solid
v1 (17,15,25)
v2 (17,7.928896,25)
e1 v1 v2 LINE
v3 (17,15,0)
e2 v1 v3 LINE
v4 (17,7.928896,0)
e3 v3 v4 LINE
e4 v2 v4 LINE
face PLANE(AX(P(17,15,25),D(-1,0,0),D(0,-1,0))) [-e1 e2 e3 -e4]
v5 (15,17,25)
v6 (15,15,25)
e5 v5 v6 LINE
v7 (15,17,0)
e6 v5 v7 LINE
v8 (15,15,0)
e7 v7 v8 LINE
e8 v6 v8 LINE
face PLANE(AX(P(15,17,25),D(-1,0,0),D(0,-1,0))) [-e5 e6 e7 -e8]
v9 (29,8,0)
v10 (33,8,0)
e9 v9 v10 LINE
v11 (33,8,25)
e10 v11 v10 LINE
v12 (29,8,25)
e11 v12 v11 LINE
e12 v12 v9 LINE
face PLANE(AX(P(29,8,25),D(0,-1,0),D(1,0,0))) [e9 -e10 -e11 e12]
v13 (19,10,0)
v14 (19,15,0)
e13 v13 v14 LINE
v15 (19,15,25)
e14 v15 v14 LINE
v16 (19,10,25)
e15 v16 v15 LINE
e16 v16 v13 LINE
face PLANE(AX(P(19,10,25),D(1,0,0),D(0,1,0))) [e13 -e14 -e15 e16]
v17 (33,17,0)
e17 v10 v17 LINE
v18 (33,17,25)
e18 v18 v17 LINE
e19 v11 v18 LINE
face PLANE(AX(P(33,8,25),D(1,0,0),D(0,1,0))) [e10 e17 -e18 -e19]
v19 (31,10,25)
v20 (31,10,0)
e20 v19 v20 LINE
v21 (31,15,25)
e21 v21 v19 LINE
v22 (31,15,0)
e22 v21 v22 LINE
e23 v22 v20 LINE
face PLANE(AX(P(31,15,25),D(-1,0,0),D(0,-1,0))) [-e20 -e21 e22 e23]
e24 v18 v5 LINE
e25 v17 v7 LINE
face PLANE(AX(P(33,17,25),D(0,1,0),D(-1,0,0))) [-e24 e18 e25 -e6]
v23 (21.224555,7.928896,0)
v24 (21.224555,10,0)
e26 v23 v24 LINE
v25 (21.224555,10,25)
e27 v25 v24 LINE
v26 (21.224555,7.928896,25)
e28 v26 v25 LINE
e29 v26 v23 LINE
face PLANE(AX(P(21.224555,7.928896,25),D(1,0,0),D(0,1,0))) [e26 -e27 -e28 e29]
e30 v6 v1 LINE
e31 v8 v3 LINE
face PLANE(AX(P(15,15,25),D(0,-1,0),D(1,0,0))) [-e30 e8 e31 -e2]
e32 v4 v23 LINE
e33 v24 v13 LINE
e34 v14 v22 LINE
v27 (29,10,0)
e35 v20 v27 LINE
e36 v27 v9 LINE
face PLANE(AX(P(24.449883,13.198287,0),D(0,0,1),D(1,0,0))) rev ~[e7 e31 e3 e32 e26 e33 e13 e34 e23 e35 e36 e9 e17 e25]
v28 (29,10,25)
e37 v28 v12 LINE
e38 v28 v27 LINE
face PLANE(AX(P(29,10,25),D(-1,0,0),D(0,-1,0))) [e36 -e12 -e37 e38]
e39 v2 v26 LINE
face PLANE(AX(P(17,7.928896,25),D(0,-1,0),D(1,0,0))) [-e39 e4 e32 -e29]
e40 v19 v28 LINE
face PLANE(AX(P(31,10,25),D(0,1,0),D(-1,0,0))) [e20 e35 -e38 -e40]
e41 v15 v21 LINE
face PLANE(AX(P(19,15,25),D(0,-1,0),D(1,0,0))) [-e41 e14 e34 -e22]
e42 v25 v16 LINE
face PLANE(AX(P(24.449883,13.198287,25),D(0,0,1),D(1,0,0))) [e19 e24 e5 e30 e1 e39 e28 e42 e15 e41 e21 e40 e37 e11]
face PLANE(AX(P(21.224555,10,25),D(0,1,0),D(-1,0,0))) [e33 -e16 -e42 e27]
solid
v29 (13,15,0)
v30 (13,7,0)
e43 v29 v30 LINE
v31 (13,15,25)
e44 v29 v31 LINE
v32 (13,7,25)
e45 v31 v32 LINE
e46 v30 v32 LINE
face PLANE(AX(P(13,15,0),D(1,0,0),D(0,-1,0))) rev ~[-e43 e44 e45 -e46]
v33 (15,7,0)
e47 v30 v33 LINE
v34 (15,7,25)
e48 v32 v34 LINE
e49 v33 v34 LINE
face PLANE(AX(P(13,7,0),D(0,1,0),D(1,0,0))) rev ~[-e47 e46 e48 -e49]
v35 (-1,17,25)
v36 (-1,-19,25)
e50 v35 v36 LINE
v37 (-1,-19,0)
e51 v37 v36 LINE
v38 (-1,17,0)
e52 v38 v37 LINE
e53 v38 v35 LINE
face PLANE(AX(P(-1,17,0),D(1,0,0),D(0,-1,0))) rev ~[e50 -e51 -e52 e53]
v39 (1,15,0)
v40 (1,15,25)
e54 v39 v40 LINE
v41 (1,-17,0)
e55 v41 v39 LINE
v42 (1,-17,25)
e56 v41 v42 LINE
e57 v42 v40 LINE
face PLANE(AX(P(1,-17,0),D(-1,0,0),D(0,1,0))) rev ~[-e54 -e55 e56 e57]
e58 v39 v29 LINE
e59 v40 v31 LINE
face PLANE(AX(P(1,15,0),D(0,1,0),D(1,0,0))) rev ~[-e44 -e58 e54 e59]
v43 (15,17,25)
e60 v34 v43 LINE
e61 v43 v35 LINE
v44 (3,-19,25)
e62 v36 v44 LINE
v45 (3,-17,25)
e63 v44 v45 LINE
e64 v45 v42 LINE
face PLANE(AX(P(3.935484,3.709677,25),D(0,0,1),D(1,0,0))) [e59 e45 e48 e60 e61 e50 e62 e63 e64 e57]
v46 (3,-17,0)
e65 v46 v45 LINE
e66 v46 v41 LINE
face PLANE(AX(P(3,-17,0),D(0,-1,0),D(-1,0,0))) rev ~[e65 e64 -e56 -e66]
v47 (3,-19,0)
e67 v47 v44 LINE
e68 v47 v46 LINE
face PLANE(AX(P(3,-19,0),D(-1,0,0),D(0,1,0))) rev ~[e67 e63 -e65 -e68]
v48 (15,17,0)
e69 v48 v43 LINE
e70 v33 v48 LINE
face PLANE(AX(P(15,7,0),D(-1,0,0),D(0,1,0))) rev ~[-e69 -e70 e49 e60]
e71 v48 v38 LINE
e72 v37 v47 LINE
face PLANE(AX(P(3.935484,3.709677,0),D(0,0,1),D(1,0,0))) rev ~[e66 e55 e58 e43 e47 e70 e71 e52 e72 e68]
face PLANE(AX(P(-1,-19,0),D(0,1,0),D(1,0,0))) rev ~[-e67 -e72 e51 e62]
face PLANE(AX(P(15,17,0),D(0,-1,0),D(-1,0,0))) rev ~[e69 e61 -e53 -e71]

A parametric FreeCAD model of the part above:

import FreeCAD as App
import Part
import Sketcher

V = App.Vector
Q = App.Units.Quantity

doc = App.newDocument("Part")
body = doc.addObject("PartDesign::Body", "Body")

sketch1 = body.newObject("Sketcher::SketchObject", "Sketch")
sketch1.AttachmentSupport = (doc.getObject("XY_Plane"), [""])
sketch1.MapMode = "FlatFace"
sketch1.addGeometry(Part.LineSegment(V(-1, 17, 0), V(-1, -19, 0)), False)
sketch1.addGeometry(Part.LineSegment(V(-1, -19, 0), V(3, -19, 0)), False)
sketch1.addGeometry(Part.LineSegment(V(3, -19, 0), V(3, -17, 0)), False)
sketch1.addGeometry(Part.LineSegment(V(3, -17, 0), V(1, -17, 0)), False)
sketch1.addGeometry(Part.LineSegment(V(1, -17, 0), V(1, 15, 0)), False)
sketch1.addGeometry(Part.LineSegment(V(1, 15, 0), V(13, 15, 0)), False)
sketch1.addGeometry(Part.LineSegment(V(13, 15, 0), V(13, 7, 0)), False)
sketch1.addGeometry(Part.LineSegment(V(13, 7, 0), V(15, 7, 0)), False)
sketch1.addGeometry(Part.LineSegment(V(15, 7, 0), V(15, 17, 0)), False)
sketch1.addGeometry(Part.LineSegment(V(15, 17, 0), V(-1, 17, 0)), False)
sketch1.addConstraint(Sketcher.Constraint("Coincident", 0, 2, 1, 1))
sketch1.addConstraint(Sketcher.Constraint("Coincident", 1, 2, 2, 1))
sketch1.addConstraint(Sketcher.Constraint("Coincident", 2, 2, 3, 1))
sketch1.addConstraint(Sketcher.Constraint("Coincident", 3, 2, 4, 1))
sketch1.addConstraint(Sketcher.Constraint("Coincident", 4, 2, 5, 1))
sketch1.addConstraint(Sketcher.Constraint("Coincident", 5, 2, 6, 1))
sketch1.addConstraint(Sketcher.Constraint("Coincident", 6, 2, 7, 1))
sketch1.addConstraint(Sketcher.Constraint("Coincident", 7, 2, 8, 1))
sketch1.addConstraint(Sketcher.Constraint("Coincident", 8, 2, 9, 1))
sketch1.addConstraint(Sketcher.Constraint("Coincident", 9, 2, 0, 1))
sketch1.addConstraint(Sketcher.Constraint("Vertical", 0))
sketch1.addConstraint(Sketcher.Constraint("Horizontal", 1))
sketch1.addConstraint(Sketcher.Constraint("Vertical", 2))
sketch1.addConstraint(Sketcher.Constraint("Horizontal", 3))
sketch1.addConstraint(Sketcher.Constraint("Vertical", 4))
sketch1.addConstraint(Sketcher.Constraint("Horizontal", 5))
sketch1.addConstraint(Sketcher.Constraint("Vertical", 6))
sketch1.addConstraint(Sketcher.Constraint("Horizontal", 7))
sketch1.addConstraint(Sketcher.Constraint("Vertical", 8))
sketch1.addConstraint(Sketcher.Constraint("Horizontal", 9))
sketch1.addConstraint(Sketcher.Constraint("Symmetric", 3, 2, 9, 2, -1, 1))
sketch1.addConstraint(Sketcher.Constraint("Equal", 3, 7))
sketch1.addConstraint(Sketcher.Constraint("Equal", 7, 2))
sketch1.addConstraint(Sketcher.Constraint("DistanceX", 1, 1, 1, 2, Q("4 mm")))
sketch1.addConstraint(Sketcher.Constraint("DistanceX", 3, 2, 3, 1, Q("2 mm")))
sketch1.addConstraint(Sketcher.Constraint("DistanceX", 5, 1, 5, 2, Q("12 mm")))
sketch1.addConstraint(Sketcher.Constraint("DistanceY", 0, 2, 0, 1, Q("36 mm")))
sketch1.addConstraint(Sketcher.Constraint("DistanceY", 4, 1, 4, 2, Q("32 mm")))
sketch1.addConstraint(Sketcher.Constraint("DistanceY", 6, 2, 6, 1, Q("8 mm")))
pad1 = body.newObject("PartDesign::Pad", "Pad")
pad1.Profile = sketch1
pad1.Length = 25
body2 = doc.addObject("PartDesign::Body", "Body001")

sketch2 = body2.newObject("Sketcher::SketchObject", "Sketch001")
sketch2.AttachmentSupport = (doc.getObject("XY_Plane001"), [""])
sketch2.MapMode = "FlatFace"
sketch2.AttachmentOffset = App.Placement(V(0, 0, 25), App.Rotation())
sketch2.addGeometry(Part.LineSegment(V(33, 17, 0), V(15, 17, 0)), False)
sketch2.addGeometry(Part.LineSegment(V(15, 17, 0), V(15, 15, 0)), False)
sketch2.addGeometry(Part.LineSegment(V(15, 15, 0), V(17, 15, 0)), False)
sketch2.addGeometry(Part.LineSegment(V(17, 15, 0), V(17, 7.9, 0)), False)
sketch2.addGeometry(Part.LineSegment(V(17, 7.9, 0), V(21.2, 7.9, 0)), False)
sketch2.addGeometry(Part.LineSegment(V(21.2, 7.9, 0), V(21.2, 10, 0)), False)
sketch2.addGeometry(Part.LineSegment(V(21.2, 10, 0), V(19, 10, 0)), False)
sketch2.addGeometry(Part.LineSegment(V(19, 10, 0), V(19, 15, 0)), False)
sketch2.addGeometry(Part.LineSegment(V(19, 15, 0), V(31, 15, 0)), False)
sketch2.addGeometry(Part.LineSegment(V(31, 15, 0), V(31, 10, 0)), False)
sketch2.addGeometry(Part.LineSegment(V(31, 10, 0), V(29, 10, 0)), False)
sketch2.addGeometry(Part.LineSegment(V(29, 10, 0), V(29, 8, 0)), False)
sketch2.addGeometry(Part.LineSegment(V(29, 8, 0), V(33, 8, 0)), False)
sketch2.addGeometry(Part.LineSegment(V(33, 8, 0), V(33, 17, 0)), False)
sketch2.addConstraint(Sketcher.Constraint("Coincident", 0, 2, 1, 1))
sketch2.addConstraint(Sketcher.Constraint("Coincident", 1, 2, 2, 1))
sketch2.addConstraint(Sketcher.Constraint("Coincident", 2, 2, 3, 1))
sketch2.addConstraint(Sketcher.Constraint("Coincident", 3, 2, 4, 1))
sketch2.addConstraint(Sketcher.Constraint("Coincident", 4, 2, 5, 1))
sketch2.addConstraint(Sketcher.Constraint("Coincident", 5, 2, 6, 1))
sketch2.addConstraint(Sketcher.Constraint("Coincident", 6, 2, 7, 1))
sketch2.addConstraint(Sketcher.Constraint("Coincident", 7, 2, 8, 1))
sketch2.addConstraint(Sketcher.Constraint("Coincident", 8, 2, 9, 1))
sketch2.addConstraint(Sketcher.Constraint("Coincident", 9, 2, 10, 1))
sketch2.addConstraint(Sketcher.Constraint("Coincident", 10, 2, 11, 1))
sketch2.addConstraint(Sketcher.Constraint("Coincident", 11, 2, 12, 1))
sketch2.addConstraint(Sketcher.Constraint("Coincident", 12, 2, 13, 1))
sketch2.addConstraint(Sketcher.Constraint("Coincident", 13, 2, 0, 1))
sketch2.addConstraint(Sketcher.Constraint("Horizontal", 0))
sketch2.addConstraint(Sketcher.Constraint("Vertical", 1))
sketch2.addConstraint(Sketcher.Constraint("Horizontal", 2))
sketch2.addConstraint(Sketcher.Constraint("Vertical", 3))
sketch2.addConstraint(Sketcher.Constraint("Horizontal", 4))
sketch2.addConstraint(Sketcher.Constraint("Vertical", 5))
sketch2.addConstraint(Sketcher.Constraint("Horizontal", 6))
sketch2.addConstraint(Sketcher.Constraint("Vertical", 7))
sketch2.addConstraint(Sketcher.Constraint("Horizontal", 8))
sketch2.addConstraint(Sketcher.Constraint("Vertical", 9))
sketch2.addConstraint(Sketcher.Constraint("Horizontal", 10))
sketch2.addConstraint(Sketcher.Constraint("Vertical", 11))
sketch2.addConstraint(Sketcher.Constraint("Horizontal", 12))
sketch2.addConstraint(Sketcher.Constraint("Vertical", 13))
sketch2.addConstraint(Sketcher.Constraint("Horizontal", 2, 2, 7, 2))
sketch2.addConstraint(Sketcher.Constraint("Horizontal", 6, 2, 9, 2))
sketch2.addConstraint(Sketcher.Constraint("Equal", 2, 10))
sketch2.addConstraint(Sketcher.Constraint("Equal", 10, 1))
sketch2.addConstraint(Sketcher.Constraint("Equal", 1, 11))
sketch2.addConstraint(Sketcher.Constraint("DistanceX", 0, 2, 0, 1, Q("18 mm")))
sketch2.addConstraint(Sketcher.Constraint("DistanceX", 2, 1, 2, 2, Q("2 mm")))
sketch2.addConstraint(Sketcher.Constraint("DistanceX", 8, 1, 8, 2, Q("12 mm")))
sketch2.addConstraint(Sketcher.Constraint("DistanceX", 12, 1, 12, 2, Q("4 mm")))
sketch2.addConstraint(Sketcher.Constraint("DistanceY", 7, 1, 7, 2, Q("5 mm")))
sketch2.addConstraint(Sketcher.Constraint("DistanceX", -1, 1, 0, 2, Q("15 mm")))
sketch2.addConstraint(Sketcher.Constraint("DistanceY", -1, 1, 0, 2, Q("17 mm")))
sketch2.addConstraint(Sketcher.Constraint("DistanceX", 4, 1, 4, 2, Q("4.224555 mm")))
sketch2.addConstraint(Sketcher.Constraint("DistanceY", 3, 2, 3, 1, Q("7.071104 mm")))
pad2 = body2.newObject("PartDesign::Pad", "Pad001")
pad2.Profile = sketch2
pad2.Length = 25
pad2.Reversed = True

doc.recompute()
